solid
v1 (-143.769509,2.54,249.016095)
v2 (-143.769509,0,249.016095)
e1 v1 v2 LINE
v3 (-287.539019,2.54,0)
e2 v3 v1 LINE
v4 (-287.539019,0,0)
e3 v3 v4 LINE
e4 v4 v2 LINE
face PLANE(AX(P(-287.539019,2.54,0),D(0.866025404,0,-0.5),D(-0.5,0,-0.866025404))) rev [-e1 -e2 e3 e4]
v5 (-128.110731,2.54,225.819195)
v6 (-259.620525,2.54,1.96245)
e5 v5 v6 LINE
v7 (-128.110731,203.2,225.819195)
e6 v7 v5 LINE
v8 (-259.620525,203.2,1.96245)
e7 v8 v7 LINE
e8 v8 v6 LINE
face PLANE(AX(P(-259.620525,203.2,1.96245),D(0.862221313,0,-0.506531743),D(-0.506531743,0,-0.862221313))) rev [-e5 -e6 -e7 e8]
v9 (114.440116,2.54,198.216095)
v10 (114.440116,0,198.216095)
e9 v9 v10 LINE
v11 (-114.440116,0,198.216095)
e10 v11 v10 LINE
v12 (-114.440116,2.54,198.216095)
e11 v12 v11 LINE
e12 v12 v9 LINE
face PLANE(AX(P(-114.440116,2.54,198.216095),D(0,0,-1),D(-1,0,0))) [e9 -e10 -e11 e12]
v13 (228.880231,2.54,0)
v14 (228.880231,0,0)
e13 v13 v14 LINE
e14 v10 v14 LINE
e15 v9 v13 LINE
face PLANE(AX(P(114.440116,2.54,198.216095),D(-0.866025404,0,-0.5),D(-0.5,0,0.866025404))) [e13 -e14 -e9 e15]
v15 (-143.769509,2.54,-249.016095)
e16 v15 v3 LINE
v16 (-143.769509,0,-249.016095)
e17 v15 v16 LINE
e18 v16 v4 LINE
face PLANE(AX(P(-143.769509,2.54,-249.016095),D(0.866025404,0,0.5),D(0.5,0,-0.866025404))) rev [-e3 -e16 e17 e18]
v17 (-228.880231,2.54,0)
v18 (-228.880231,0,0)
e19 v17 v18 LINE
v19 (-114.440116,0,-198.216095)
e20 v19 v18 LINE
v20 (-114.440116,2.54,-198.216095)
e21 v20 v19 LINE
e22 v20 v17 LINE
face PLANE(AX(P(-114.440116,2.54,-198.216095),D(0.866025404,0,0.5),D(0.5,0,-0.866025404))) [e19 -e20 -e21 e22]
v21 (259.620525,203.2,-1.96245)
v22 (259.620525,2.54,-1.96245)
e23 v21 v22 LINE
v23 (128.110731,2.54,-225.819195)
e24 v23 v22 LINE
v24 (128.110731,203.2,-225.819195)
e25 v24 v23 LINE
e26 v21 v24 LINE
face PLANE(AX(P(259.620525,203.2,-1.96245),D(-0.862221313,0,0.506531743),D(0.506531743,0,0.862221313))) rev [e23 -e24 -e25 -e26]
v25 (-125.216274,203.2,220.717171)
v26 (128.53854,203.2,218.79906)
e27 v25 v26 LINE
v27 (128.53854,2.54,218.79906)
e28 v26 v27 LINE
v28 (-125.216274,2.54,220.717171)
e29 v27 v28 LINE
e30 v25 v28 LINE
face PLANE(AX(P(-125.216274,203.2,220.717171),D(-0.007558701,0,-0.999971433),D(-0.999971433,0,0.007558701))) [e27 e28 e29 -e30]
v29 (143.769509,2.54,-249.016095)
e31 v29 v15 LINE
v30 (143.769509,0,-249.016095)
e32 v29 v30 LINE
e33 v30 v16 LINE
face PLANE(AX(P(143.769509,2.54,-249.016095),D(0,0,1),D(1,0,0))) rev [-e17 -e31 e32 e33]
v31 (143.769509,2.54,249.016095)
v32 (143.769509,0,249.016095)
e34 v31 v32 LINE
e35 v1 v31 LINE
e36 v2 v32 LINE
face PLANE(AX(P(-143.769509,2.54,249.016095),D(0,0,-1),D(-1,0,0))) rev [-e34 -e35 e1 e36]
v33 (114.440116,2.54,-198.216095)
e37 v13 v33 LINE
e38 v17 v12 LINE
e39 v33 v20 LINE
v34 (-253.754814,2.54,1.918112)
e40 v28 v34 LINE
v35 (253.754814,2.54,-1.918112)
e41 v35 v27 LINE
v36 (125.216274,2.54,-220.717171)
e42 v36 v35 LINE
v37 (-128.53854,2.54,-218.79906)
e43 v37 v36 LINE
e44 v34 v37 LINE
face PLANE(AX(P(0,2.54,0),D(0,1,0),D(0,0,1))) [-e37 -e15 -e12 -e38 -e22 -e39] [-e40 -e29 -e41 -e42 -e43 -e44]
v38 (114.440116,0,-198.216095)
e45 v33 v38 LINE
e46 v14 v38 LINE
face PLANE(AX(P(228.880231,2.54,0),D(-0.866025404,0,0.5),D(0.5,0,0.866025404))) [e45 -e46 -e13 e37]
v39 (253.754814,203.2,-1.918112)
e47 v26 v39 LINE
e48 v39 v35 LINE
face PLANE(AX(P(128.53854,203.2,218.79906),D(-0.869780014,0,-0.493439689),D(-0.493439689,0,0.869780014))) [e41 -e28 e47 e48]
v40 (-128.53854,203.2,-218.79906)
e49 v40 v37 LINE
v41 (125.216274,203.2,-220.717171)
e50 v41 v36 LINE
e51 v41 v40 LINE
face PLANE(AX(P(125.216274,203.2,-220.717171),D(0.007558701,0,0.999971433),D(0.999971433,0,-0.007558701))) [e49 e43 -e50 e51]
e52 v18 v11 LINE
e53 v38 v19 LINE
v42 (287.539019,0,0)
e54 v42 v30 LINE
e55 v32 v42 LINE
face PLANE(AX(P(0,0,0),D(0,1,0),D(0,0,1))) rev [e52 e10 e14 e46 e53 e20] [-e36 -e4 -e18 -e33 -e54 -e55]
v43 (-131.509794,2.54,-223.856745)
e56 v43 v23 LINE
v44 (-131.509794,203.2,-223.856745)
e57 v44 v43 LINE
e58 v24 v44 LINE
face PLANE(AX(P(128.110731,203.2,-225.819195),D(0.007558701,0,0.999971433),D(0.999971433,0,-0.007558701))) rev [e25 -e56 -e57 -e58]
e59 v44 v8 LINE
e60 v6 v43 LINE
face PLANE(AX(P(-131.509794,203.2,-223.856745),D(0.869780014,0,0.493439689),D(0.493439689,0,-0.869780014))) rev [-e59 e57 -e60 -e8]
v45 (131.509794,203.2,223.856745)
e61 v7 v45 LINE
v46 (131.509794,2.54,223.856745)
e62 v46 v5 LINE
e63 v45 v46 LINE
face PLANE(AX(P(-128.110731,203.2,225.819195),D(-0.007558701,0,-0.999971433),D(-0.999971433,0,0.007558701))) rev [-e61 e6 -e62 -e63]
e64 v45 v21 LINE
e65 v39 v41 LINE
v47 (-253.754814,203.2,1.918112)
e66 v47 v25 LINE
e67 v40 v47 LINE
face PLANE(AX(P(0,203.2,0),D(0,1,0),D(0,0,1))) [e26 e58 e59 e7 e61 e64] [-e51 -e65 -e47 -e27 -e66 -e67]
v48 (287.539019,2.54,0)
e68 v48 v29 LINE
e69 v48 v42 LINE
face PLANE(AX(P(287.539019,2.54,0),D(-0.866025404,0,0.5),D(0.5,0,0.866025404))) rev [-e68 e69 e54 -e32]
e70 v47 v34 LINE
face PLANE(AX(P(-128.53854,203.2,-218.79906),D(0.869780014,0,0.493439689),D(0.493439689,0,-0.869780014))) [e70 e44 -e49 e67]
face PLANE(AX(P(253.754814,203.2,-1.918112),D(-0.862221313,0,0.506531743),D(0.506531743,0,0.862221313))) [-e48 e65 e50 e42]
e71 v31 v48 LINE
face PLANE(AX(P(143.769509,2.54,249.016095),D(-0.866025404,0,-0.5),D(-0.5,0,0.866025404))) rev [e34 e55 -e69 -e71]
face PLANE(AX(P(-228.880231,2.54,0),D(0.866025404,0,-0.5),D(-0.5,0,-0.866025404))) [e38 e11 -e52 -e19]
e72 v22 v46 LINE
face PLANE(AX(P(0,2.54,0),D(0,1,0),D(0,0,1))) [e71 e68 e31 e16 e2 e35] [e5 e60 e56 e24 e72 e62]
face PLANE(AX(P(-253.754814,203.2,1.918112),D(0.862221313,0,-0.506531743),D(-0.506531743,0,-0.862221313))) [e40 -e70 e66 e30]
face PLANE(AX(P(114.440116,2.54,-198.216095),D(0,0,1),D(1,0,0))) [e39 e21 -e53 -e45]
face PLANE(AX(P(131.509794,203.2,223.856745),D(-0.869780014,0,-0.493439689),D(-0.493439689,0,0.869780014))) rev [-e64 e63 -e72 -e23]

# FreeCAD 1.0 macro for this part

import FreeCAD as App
import Part
import Sketcher

V = App.Vector
Q = App.Units.Quantity

doc = App.newDocument("Part")
body = doc.addObject("PartDesign::Body", "Body")

sketch1 = body.newObject("Sketcher::SketchObject", "Sketch")
sketch1.AttachmentSupport = (doc.getObject("XZ_Plane"), [""])
sketch1.MapMode = "FlatFace"
sketch1.addGeometry([
    Part.LineSegment(V(144, 249, 0), V(288, 0, 0)),
    Part.LineSegment(V(288, 0, 0), V(144, -249, 0)),
    Part.LineSegment(V(144, -249, 0), V(-144, -249, 0)),
    Part.LineSegment(V(-144, -249, 0), V(-288, 0, 0)),
    Part.LineSegment(V(-288, 0, 0), V(-144, 249, 0)),
    Part.LineSegment(V(-144, 249, 0), V(144, 249, 0)),
    Part.LineSegment(V(229, 0, 0), V(114, 198, 0)),
    Part.LineSegment(V(114, 198, 0), V(-114, 198, 0)),
    Part.LineSegment(V(-114, 198, 0), V(-229, 0, 0)),
    Part.LineSegment(V(-229, 0, 0), V(-114, -198, 0)),
    Part.LineSegment(V(-114, -198, 0), V(114, -198, 0)),
    Part.LineSegment(V(114, -198, 0), V(229, 0, 0)),
], False)
sketch1.addConstraint([
    Sketcher.Constraint("Coincident", 0, 2, 1, 1),
    Sketcher.Constraint("Coincident", 1, 2, 2, 1),
    Sketcher.Constraint("Coincident", 2, 2, 3, 1),
    Sketcher.Constraint("Coincident", 3, 2, 4, 1),
    Sketcher.Constraint("Coincident", 4, 2, 5, 1),
    Sketcher.Constraint("Coincident", 5, 2, 0, 1),
    Sketcher.Constraint("Coincident", 6, 2, 7, 1),
    Sketcher.Constraint("Coincident", 7, 2, 8, 1),
    Sketcher.Constraint("Coincident", 8, 2, 9, 1),
    Sketcher.Constraint("Coincident", 9, 2, 10, 1),
    Sketcher.Constraint("Coincident", 10, 2, 11, 1),
    Sketcher.Constraint("Coincident", 11, 2, 6, 1),
    Sketcher.Constraint("Horizontal", 2),
    Sketcher.Constraint("Horizontal", 5),
    Sketcher.Constraint("Horizontal", 7),
    Sketcher.Constraint("Horizontal", 10),
    Sketcher.Constraint("Symmetric", 0, 2, 3, 2, -1, 1),
    Sketcher.Constraint("Symmetric", 1, 2, 4, 2, -1, 1),
    Sketcher.Constraint("Symmetric", 6, 2, 9, 2, -1, 1),
    Sketcher.Constraint("Symmetric", 8, 2, 11, 2, -1, 1),
    Sketcher.Constraint("PointOnObject", 0, 2, -1),
    Sketcher.Constraint("PointOnObject", 8, 2, -1),
    Sketcher.Constraint("Parallel", 0, 3),
    Sketcher.Constraint("Parallel", 3, 6),
    Sketcher.Constraint("Parallel", 4, 8),
    Sketcher.Constraint("Parallel", 8, 11),
    Sketcher.Constraint("Vertical", 2, 2, 4, 2),
    Sketcher.Constraint("Angle", 0, Q("-60 deg")),
    Sketcher.Constraint("DistanceY", 6, 2, 5, 2, Q("2 in")),
    Sketcher.Constraint("DistanceX", 2, 2, 2, 1, Q("287.539019 mm")),
    Sketcher.Constraint("DistanceX", 7, 2, 7, 1, Q("228.880231 mm")),
    Sketcher.Constraint("Distance", 0, Q("287.539019 mm")),
])
pad1 = body.newObject("PartDesign::Pad", "Pad")
pad1.Profile = sketch1
pad1.Length = Q("0.1 in")
pad1.Reversed = True

sketch2 = body.newObject("Sketcher::SketchObject", "Sketch001")
sketch2.AttachmentSupport = (doc.getObject("XZ_Plane"), [""])
sketch2.MapMode = "FlatFace"
sketch2.addGeometry([
    Part.LineSegment(V(128, -226, 0), V(-132, -224, 0)),
    Part.LineSegment(V(-132, -224, 0), V(-260, 2, 0)),
    Part.LineSegment(V(-260, 2, 0), V(-128, 226, 0)),
    Part.LineSegment(V(-128, 226, 0), V(132, 224, 0)),
    Part.LineSegment(V(132, 224, 0), V(260, -2, 0)),
    Part.LineSegment(V(260, -2, 0), V(128, -226, 0)),
    Part.LineSegment(V(-129, -219, 0), V(125, -221, 0)),
    Part.LineSegment(V(125, -221, 0), V(254, -2, 0)),
    Part.LineSegment(V(254, -2, 0), V(129, 219, 0)),
    Part.LineSegment(V(129, 219, 0), V(-125, 221, 0)),
    Part.LineSegment(V(-125, 221, 0), V(-254, 2, 0)),
    Part.LineSegment(V(-254, 2, 0), V(-129, -219, 0)),
], False)
sketch2.addConstraint([
    Sketcher.Constraint("Coincident", 0, 2, 1, 1),
    Sketcher.Constraint("Coincident", 1, 2, 2, 1),
    Sketcher.Constraint("Coincident", 2, 2, 3, 1),
    Sketcher.Constraint("Coincident", 3, 2, 4, 1),
    Sketcher.Constraint("Coincident", 4, 2, 5, 1),
    Sketcher.Constraint("Coincident", 5, 2, 0, 1),
    Sketcher.Constraint("Coincident", 6, 2, 7, 1),
    Sketcher.Constraint("Coincident", 7, 2, 8, 1),
    Sketcher.Constraint("Coincident", 8, 2, 9, 1),
    Sketcher.Constraint("Coincident", 9, 2, 10, 1),
    Sketcher.Constraint("Coincident", 10, 2, 11, 1),
    Sketcher.Constraint("Coincident", 11, 2, 6, 1),
    Sketcher.Constraint("Symmetric", 0, 2, 3, 2, -1, 1),
    Sketcher.Constraint("Symmetric", 1, 2, 4, 2, -1, 1),
    Sketcher.Constraint("Symmetric", 2, 2, 5, 2, -1, 1),
    Sketcher.Constraint("Symmetric", 6, 2, 9, 2, -1, 1),
    Sketcher.Constraint("Symmetric", 7, 2, 10, 2, -1, 1),
    Sketcher.Constraint("Symmetric", 8, 2, 11, 2, -1, 1),
    Sketcher.Constraint("Parallel", 3, 6),
    Sketcher.Constraint("Parallel", 5, 7),
    Sketcher.Constraint("Parallel", 4, 8),
    Sketcher.Constraint("Equal", 0, 1),
    Sketcher.Constraint("Equal", 1, 2),
    Sketcher.Constraint("Equal", 6, 7),
    Sketcher.Constraint("Equal", 7, 8),
    Sketcher.Constraint("DistanceY", 4, 2, 1, 2, Q("3.9249 mm")),
    Sketcher.Constraint("DistanceX", 1, 2, 6, 2, Q("384.836799 mm")),
    Sketcher.Constraint("DistanceX", 2, 2, -1, 1, Q("128.110731 mm")),
    Sketcher.Constraint("DistanceY", 6, 2, -1, 1, Q("220.717171 mm")),
    Sketcher.Constraint("DistanceX", -1, 1, 8, 2, Q("128.53854 mm")),
])
pad2 = body.newObject("PartDesign::Pad", "Pad001")
pad2.Profile = sketch2
pad2.Length = Q("8 in")
pad2.Reversed = True

doc.recompute()
